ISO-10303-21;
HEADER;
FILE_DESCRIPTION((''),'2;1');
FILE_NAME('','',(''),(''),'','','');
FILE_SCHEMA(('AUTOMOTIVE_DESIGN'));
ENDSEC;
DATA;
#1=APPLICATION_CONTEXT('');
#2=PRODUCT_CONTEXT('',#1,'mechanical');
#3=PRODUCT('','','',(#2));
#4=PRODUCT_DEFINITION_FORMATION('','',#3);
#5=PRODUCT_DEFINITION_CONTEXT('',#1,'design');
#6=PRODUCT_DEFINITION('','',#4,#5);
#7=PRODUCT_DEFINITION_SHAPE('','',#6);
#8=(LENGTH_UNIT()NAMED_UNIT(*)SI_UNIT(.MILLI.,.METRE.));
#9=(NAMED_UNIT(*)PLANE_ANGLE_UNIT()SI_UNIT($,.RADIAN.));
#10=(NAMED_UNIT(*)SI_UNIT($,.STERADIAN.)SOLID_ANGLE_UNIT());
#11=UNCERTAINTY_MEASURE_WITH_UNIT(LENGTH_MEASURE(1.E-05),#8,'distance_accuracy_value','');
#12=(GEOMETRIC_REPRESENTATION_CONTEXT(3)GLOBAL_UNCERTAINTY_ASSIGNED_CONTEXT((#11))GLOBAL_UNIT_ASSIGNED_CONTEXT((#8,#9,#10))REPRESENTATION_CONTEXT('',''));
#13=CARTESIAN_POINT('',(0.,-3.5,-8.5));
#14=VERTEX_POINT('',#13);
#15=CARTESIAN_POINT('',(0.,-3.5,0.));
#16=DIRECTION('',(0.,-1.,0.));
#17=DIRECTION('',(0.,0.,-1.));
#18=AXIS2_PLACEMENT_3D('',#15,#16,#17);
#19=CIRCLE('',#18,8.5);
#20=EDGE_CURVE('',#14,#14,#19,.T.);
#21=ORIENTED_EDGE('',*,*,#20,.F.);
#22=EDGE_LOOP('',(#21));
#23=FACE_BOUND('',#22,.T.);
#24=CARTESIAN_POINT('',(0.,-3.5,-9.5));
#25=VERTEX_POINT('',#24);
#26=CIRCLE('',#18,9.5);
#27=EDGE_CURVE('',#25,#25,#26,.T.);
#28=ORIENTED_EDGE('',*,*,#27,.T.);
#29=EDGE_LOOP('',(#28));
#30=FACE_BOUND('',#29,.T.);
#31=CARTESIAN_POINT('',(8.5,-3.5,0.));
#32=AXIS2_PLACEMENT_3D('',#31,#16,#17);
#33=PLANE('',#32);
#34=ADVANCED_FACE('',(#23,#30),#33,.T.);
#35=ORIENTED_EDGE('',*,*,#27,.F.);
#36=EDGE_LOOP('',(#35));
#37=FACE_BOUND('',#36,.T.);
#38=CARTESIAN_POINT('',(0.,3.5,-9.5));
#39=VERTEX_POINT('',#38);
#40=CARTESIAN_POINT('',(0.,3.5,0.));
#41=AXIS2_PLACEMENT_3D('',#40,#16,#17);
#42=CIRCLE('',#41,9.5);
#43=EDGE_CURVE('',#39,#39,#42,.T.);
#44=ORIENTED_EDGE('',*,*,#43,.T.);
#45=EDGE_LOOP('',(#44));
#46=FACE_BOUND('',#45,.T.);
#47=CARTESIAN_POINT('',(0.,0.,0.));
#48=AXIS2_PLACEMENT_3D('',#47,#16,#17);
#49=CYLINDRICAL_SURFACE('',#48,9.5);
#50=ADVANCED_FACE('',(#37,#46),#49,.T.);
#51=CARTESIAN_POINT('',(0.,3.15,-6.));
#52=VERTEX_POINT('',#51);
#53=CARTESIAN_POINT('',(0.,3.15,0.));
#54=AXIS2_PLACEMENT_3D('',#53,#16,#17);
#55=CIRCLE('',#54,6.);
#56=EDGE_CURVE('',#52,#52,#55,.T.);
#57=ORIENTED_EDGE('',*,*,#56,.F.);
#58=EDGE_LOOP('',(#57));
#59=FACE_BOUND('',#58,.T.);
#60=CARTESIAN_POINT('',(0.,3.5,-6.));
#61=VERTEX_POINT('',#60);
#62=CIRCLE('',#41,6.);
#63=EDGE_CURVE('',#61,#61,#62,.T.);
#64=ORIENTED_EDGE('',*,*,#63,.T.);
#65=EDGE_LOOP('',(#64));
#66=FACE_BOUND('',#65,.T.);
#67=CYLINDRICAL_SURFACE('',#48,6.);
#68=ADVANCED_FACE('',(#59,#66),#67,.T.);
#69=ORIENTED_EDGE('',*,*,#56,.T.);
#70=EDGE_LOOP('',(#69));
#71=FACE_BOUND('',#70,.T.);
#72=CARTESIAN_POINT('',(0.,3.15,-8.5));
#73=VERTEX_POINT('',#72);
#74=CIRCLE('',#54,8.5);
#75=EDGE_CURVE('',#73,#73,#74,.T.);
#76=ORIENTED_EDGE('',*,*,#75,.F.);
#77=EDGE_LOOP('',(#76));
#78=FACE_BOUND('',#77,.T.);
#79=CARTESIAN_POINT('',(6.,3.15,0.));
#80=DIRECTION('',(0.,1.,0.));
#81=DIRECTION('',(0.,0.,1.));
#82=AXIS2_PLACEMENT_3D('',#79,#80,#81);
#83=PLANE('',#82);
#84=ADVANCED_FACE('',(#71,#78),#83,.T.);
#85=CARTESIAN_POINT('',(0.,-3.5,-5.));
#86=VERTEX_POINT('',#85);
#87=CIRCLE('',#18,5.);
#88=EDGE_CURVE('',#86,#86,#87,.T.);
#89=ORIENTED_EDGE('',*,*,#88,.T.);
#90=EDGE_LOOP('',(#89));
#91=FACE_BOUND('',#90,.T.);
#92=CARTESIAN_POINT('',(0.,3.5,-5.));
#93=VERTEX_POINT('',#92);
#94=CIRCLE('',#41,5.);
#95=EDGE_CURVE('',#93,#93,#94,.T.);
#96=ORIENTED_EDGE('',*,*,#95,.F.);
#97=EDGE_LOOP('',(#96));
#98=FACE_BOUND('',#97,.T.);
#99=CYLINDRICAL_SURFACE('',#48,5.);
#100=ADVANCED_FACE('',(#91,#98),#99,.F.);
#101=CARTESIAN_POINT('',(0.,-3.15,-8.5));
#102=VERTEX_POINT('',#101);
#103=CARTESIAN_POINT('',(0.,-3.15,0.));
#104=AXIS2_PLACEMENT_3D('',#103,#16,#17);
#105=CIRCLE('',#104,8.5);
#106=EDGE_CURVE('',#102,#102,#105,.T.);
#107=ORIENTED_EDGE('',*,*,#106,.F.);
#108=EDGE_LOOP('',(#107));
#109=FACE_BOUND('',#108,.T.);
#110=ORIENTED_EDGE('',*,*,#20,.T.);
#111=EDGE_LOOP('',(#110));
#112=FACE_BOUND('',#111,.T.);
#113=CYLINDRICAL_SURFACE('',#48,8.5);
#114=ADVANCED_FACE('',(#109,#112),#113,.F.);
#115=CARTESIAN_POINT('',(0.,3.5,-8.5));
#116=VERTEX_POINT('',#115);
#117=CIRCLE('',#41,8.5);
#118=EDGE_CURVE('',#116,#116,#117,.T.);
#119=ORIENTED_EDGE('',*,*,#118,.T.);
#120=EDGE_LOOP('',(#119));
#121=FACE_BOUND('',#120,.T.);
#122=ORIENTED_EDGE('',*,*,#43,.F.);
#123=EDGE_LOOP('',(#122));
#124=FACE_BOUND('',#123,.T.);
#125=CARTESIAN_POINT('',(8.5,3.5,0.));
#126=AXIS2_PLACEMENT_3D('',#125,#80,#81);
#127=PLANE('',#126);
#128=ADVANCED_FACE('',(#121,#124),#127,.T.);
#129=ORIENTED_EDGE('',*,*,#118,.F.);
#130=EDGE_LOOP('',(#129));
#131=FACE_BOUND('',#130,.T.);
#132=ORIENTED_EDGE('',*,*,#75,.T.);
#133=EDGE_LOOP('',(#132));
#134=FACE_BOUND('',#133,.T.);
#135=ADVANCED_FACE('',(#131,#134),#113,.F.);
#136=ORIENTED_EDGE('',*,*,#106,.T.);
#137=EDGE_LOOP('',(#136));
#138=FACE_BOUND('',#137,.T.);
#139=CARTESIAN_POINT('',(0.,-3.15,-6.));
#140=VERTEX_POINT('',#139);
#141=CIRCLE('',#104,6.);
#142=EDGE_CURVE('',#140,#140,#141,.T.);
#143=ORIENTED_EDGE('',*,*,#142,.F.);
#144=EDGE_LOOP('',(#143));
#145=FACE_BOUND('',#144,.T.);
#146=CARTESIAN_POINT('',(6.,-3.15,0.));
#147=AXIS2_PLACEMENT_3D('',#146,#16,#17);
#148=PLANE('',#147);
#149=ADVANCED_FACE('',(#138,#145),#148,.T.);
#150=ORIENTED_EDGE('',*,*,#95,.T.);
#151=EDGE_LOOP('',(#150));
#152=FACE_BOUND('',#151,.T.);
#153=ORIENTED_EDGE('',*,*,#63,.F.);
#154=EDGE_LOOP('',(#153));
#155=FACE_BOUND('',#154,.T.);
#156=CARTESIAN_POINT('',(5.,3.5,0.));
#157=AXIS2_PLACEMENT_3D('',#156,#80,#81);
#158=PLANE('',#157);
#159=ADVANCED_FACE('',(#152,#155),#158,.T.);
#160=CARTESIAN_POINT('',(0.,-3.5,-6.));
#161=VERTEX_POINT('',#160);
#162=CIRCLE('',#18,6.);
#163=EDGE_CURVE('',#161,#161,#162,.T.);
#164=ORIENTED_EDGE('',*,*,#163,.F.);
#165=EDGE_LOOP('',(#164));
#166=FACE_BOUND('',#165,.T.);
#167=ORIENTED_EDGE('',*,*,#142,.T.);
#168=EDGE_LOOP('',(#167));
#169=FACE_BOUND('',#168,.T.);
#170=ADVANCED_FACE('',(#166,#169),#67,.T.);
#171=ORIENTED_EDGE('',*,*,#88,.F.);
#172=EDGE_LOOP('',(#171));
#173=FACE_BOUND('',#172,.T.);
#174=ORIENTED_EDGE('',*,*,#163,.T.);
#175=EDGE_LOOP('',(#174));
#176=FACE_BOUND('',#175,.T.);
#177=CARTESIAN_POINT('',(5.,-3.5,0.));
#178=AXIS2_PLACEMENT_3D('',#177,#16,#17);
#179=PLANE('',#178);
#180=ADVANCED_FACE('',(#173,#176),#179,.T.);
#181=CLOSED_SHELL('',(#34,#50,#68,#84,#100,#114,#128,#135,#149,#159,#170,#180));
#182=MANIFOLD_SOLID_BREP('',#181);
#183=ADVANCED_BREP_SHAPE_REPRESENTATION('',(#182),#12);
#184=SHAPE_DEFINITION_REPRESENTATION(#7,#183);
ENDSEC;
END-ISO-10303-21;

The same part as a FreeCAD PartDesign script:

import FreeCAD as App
import Part
import Sketcher
from FreeCAD import Vector

doc = App.newDocument("Part")
body = doc.addObject("PartDesign::Body", "Body")

# Sketch on XY plane
sketch1 = body.newObject("Sketcher::SketchObject", "Sketch")
sketch1.AttachmentSupport = (doc.getObject("XY_Plane"), [""])
sketch1.MapMode = "FlatFace"
sketch1.addGeometry([
    Part.LineSegment(Vector(5, 3.5, 0), Vector(5, -3.5, 0)),  # 0
    Part.LineSegment(Vector(5, -3.5, 0), Vector(6, -3.5, 0)),  # 1
    Part.LineSegment(Vector(6, -3.5, 0), Vector(6, -3.15, 0)),  # 2
    Part.LineSegment(Vector(6, -3.15, 0), Vector(8.5, -3.15, 0)),  # 3
    Part.LineSegment(Vector(8.5, -3.15, 0), Vector(8.5, -3.5, 0)),  # 4
    Part.LineSegment(Vector(8.5, -3.5, 0), Vector(9.5, -3.5, 0)),  # 5
    Part.LineSegment(Vector(9.5, -3.5, 0), Vector(9.5, 3.5, 0)),  # 6
    Part.LineSegment(Vector(9.5, 3.5, 0), Vector(8.5, 3.5, 0)),  # 7
    Part.LineSegment(Vector(8.5, 3.5, 0), Vector(8.5, 3.15, 0)),  # 8
    Part.LineSegment(Vector(8.5, 3.15, 0), Vector(6, 3.15, 0)),  # 9
    Part.LineSegment(Vector(6, 3.15, 0), Vector(6, 3.5, 0)),  # 10
    Part.LineSegment(Vector(6, 3.5, 0), Vector(5, 3.5, 0)),  # 11
], False)
sketch1.addConstraint([
    Sketcher.Constraint("Coincident", 0, 2, 1, 1),
    Sketcher.Constraint("Coincident", 1, 2, 2, 1),
    Sketcher.Constraint("Coincident", 2, 2, 3, 1),
    Sketcher.Constraint("Coincident", 3, 2, 4, 1),
    Sketcher.Constraint("Coincident", 4, 2, 5, 1),
    Sketcher.Constraint("Coincident", 5, 2, 6, 1),
    Sketcher.Constraint("Coincident", 6, 2, 7, 1),
    Sketcher.Constraint("Coincident", 7, 2, 8, 1),
    Sketcher.Constraint("Coincident", 8, 2, 9, 1),
    Sketcher.Constraint("Coincident", 9, 2, 10, 1),
    Sketcher.Constraint("Coincident", 10, 2, 11, 1),
    Sketcher.Constraint("Coincident", 11, 2, 0, 1),
    Sketcher.Constraint("Vertical", 0),
    Sketcher.Constraint("Horizontal", 1),
    Sketcher.Constraint("Vertical", 2),
    Sketcher.Constraint("Horizontal", 3),
    Sketcher.Constraint("Vertical", 4),
    Sketcher.Constraint("Horizontal", 5),
    Sketcher.Constraint("Vertical", 6),
    Sketcher.Constraint("Horizontal", 7),
    Sketcher.Constraint("Vertical", 8),
    Sketcher.Constraint("Horizontal", 9),
    Sketcher.Constraint("Vertical", 10),
    Sketcher.Constraint("Horizontal", 11),
    Sketcher.Constraint("Symmetric", 4, 2, 7, 2, -1),
    Sketcher.Constraint("Symmetric", 2, 2, 9, 2, -1),
    Sketcher.Constraint("Horizontal", 1, 2, 4, 2),
    Sketcher.Constraint("Horizontal", 7, 2, 10, 2),
    Sketcher.Constraint("Equal", 1, 5),
    Sketcher.Constraint("DistanceX", 1, 1, 1, 2, 1.0),
    Sketcher.Constraint("DistanceY", 0, 2, 0, 1, 7.0),
    Sketcher.Constraint("DistanceX", 3, 1, 3, 2, 2.5),
    Sketcher.Constraint("DistanceX", -1, 1, 0, 2, 5.0),
    Sketcher.Constraint("DistanceY", 2, 1, 2, 2, 0.35),
])
revolution = body.newObject("PartDesign::Revolution", "Revolution")
revolution.Profile = sketch1
revolution.ReferenceAxis = (sketch1, ["V_Axis"])
revolution.Angle = 360

doc.recompute()
